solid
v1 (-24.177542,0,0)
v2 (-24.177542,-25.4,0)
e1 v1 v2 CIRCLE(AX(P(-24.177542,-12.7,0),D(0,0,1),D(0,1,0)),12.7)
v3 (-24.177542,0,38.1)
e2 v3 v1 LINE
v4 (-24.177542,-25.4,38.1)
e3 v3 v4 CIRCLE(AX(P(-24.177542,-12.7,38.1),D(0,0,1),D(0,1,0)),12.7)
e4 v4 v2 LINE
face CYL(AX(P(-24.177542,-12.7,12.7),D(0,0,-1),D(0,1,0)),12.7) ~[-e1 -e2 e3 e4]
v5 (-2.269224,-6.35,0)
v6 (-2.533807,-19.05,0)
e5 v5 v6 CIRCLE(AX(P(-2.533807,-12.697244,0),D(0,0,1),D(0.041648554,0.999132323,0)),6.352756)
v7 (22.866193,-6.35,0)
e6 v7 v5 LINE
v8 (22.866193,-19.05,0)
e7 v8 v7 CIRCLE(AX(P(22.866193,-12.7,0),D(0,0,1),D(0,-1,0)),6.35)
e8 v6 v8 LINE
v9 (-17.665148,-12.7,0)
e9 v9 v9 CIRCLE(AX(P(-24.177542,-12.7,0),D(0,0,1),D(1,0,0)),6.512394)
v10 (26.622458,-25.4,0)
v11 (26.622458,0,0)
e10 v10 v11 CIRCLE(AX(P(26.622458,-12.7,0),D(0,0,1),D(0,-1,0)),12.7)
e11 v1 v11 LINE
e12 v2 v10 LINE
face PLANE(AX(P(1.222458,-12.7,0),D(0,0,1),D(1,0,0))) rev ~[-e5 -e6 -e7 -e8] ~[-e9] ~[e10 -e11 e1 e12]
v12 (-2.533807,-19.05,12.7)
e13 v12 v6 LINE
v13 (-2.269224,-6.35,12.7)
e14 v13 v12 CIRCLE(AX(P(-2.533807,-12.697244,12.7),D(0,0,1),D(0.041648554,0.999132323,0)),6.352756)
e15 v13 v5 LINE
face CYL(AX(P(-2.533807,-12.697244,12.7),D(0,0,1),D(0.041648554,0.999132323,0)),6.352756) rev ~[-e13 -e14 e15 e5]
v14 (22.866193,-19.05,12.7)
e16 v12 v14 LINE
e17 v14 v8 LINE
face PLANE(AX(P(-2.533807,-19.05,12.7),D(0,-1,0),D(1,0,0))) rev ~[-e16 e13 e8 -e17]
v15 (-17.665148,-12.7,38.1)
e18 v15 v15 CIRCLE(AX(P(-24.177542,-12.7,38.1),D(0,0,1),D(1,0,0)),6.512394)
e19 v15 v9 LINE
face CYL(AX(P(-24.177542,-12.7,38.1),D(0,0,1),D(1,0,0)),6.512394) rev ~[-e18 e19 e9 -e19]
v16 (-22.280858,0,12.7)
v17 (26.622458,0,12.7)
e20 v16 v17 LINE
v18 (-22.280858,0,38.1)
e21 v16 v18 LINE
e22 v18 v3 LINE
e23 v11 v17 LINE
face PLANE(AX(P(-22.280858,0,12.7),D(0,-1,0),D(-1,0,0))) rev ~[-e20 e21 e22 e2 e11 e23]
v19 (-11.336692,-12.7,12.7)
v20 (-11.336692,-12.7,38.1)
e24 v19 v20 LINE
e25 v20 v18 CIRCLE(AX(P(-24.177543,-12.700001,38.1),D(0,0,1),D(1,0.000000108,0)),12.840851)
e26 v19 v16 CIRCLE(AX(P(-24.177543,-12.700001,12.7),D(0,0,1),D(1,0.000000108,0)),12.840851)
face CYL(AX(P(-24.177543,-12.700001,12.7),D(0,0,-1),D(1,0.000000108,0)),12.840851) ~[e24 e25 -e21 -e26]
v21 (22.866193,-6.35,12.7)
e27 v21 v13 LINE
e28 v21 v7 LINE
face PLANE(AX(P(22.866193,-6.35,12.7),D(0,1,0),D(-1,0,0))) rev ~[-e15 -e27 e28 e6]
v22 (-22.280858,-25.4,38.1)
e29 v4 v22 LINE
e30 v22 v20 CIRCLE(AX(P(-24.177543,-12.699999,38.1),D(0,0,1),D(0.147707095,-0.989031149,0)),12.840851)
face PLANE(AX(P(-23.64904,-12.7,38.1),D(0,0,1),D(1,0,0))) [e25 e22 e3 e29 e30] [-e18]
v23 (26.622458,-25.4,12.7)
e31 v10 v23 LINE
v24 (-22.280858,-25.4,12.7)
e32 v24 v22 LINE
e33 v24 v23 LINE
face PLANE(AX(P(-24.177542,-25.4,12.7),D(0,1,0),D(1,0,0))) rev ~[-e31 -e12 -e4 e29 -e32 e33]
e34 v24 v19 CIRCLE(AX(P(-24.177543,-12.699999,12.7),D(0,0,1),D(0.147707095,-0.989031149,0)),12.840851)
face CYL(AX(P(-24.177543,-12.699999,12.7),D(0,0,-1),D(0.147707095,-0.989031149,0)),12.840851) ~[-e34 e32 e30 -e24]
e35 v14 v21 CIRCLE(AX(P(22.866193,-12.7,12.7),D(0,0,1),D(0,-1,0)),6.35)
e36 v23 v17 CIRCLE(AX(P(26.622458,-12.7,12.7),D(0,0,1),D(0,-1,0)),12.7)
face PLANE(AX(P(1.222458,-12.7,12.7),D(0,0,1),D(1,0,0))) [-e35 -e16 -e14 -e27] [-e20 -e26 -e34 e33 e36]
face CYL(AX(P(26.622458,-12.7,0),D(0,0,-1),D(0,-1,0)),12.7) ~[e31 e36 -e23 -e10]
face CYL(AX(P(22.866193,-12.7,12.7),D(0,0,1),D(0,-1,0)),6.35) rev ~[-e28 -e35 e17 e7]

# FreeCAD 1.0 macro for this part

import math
import FreeCAD as App
import Part
import Sketcher

V = App.Vector
Q = App.Units.Quantity

doc = App.newDocument("Part")
body = doc.addObject("PartDesign::Body", "Body")

sketch1 = doc.addObject("Sketcher::SketchObject", "Sketch")
body.addObject(sketch1)
sketch1.AttachmentSupport = (doc.XY_Plane, [""])
sketch1.MapMode = "FlatFace"
sketch1.addGeometry([
    Part.LineSegment(V(-24, -25, 0), V(27, -25, 0)),
    Part.ArcOfCircle(Part.Circle(V(27, -13, 0), V(0, 0, 1), 13), math.radians(-90), math.radians(90)),
    Part.LineSegment(V(27, 0, 0), V(-24, 0, 0)),
    Part.ArcOfCircle(Part.Circle(V(-24, -13, 0), V(0, 0, 1), 13), math.radians(90), math.radians(270)),
], False)
sketch1.addConstraint([
    Sketcher.Constraint("Tangent", 0, 2, 1, 1),
    Sketcher.Constraint("Tangent", 1, 2, 2, 1),
    Sketcher.Constraint("Tangent", 2, 2, 3, 1),
    Sketcher.Constraint("Tangent", 3, 2, 0, 1),
    Sketcher.Constraint("Horizontal", 0),
    Sketcher.Constraint("Horizontal", 2),
    Sketcher.Constraint("PointOnObject", 1, 2, -1),
    Sketcher.Constraint("Radius", 1, Q("0.5 in")),
    Sketcher.Constraint("DistanceX", 0, 1, 0, 2, Q("2 in")),
    Sketcher.Constraint("DistanceX", -1, 1, 1, 3, 26.622458),
])
pad1 = doc.addObject("PartDesign::Pad", "Pad")
body.addObject(pad1)
pad1.Profile = sketch1
pad1.Length = Q("0.5 in")

sketch2 = doc.addObject("Sketcher::SketchObject", "Sketch001")
body.addObject(sketch2)
sketch2.AttachmentSupport = (doc.XY_Plane, [""])
sketch2.MapMode = "FlatFace"
sketch2.AttachmentOffset = App.Placement(V(0, 0, 0.5 * 25.4), App.Rotation())
sketch2.addGeometry([
    Part.ArcOfCircle(Part.Circle(V(-24.2, -12.7, 0), V(0, 0, 1), 12.8), math.radians(-82), math.radians(0)),
    Part.ArcOfCircle(Part.Circle(V(-24.2, -12.7, 0), V(0, 0, 1), 12.8), math.radians(0), math.radians(82)),
    Part.LineSegment(V(-22.3, 0, 0), V(-24.2, 0, 0)),
    Part.ArcOfCircle(Part.Circle(V(-24.2, -12.7, 0), V(0, 0, 1), 12.7), math.radians(90), math.radians(270)),
    Part.LineSegment(V(-24.2, -25.4, 0), V(-22.3, -25.4, 0)),
], False)
sketch2.addConstraint([
    Sketcher.Constraint("Tangent", 0, 2, 1, 1),
    Sketcher.Constraint("Coincident", 1, 2, 2, 1),
    Sketcher.Constraint("Tangent", 2, 2, 3, 1),
    Sketcher.Constraint("Tangent", 3, 2, 4, 1),
    Sketcher.Constraint("Coincident", 4, 2, 0, 1),
    Sketcher.Constraint("Horizontal", 2),
    Sketcher.Constraint("Horizontal", 4),
    Sketcher.Constraint("Coincident", 3, 3, 0, 3),
    Sketcher.Constraint("Equal", 0, 1),
    Sketcher.Constraint("PointOnObject", 1, 2, -1),
    Sketcher.Constraint("Horizontal", 3, 3, 0, 2),
    Sketcher.Constraint("Radius", 3, Q("0.5 in")),
    Sketcher.Constraint("Radius", 0, 12.840851),
    Sketcher.Constraint("DistanceX", 3, 3, -1, 1, 24.177542),
])
pad2 = doc.addObject("PartDesign::Pad", "Pad001")
body.addObject(pad2)
pad2.Profile = sketch2
pad2.Length = Q("1 in")

sketch3 = doc.addObject("Sketcher::SketchObject", "Sketch002")
body.addObject(sketch3)
sketch3.AttachmentSupport = (doc.XY_Plane, [""])
sketch3.MapMode = "FlatFace"
sketch3.AttachmentOffset = App.Placement(V(0, 0, 1.5 * 25.4), App.Rotation())
sketch3.addGeometry(Part.Circle(V(-24, -13, 0), V(0, 0, 1), 7), False)
sketch3.addConstraint([
    Sketcher.Constraint("DistanceY", 0, 3, -1, 1, Q("0.5 in")),
    Sketcher.Constraint("Diameter", 0, 13.024788),
    Sketcher.Constraint("DistanceX", 0, 3, -1, 1, 24.177542),
])
pocket1 = doc.addObject("PartDesign::Pocket", "Pocket")
body.addObject(pocket1)
pocket1.Profile = sketch3
pocket1.Length = Q("1.5 in")

sketch4 = doc.addObject("Sketcher::SketchObject", "Sketch003")
body.addObject(sketch4)
sketch4.AttachmentSupport = (doc.XY_Plane, [""])
sketch4.MapMode = "FlatFace"
sketch4.AttachmentOffset = App.Placement(V(0, 0, 0.5 * 25.4), App.Rotation())
sketch4.addGeometry([
    Part.ArcOfCircle(Part.Circle(V(23, -13, 0), V(0, 0, 1), 6), math.radians(-90), math.radians(90)),
    Part.LineSegment(V(23, -6, 0), V(-2, -6, 0)),
    Part.ArcOfCircle(Part.Circle(V(-3, -13, 0), V(0, 0, 1), 6), math.radians(88), math.radians(270)),
    Part.LineSegment(V(-3, -19, 0), V(23, -19, 0)),
], False)
sketch4.addConstraint([
    Sketcher.Constraint("Tangent", 0, 2, 1, 1),
    Sketcher.Constraint("Coincident", 1, 2, 2, 1),
    Sketcher.Constraint("Tangent", 2, 2, 3, 1),
    Sketcher.Constraint("Tangent", 3, 2, 0, 1),
    Sketcher.Constraint("Horizontal", 1),
    Sketcher.Constraint("Horizontal", 3),
    Sketcher.Constraint("DistanceX", 3, 1, 3, 2, Q("1 in")),
    Sketcher.Constraint("Radius", 0, Q("0.25 in")),
    Sketcher.Constraint("DistanceY", 0, 3, -1, 1, Q("0.5 in")),
    Sketcher.Constraint("Radius", 2, 6.352756),
    Sketcher.Constraint("DistanceX", -1, 1, 0, 3, 22.866193),
])
pocket2 = doc.addObject("PartDesign::Pocket", "Pocket001")
body.addObject(pocket2)
pocket2.Profile = sketch4
pocket2.Length = Q("0.5 in")

doc.recompute()
